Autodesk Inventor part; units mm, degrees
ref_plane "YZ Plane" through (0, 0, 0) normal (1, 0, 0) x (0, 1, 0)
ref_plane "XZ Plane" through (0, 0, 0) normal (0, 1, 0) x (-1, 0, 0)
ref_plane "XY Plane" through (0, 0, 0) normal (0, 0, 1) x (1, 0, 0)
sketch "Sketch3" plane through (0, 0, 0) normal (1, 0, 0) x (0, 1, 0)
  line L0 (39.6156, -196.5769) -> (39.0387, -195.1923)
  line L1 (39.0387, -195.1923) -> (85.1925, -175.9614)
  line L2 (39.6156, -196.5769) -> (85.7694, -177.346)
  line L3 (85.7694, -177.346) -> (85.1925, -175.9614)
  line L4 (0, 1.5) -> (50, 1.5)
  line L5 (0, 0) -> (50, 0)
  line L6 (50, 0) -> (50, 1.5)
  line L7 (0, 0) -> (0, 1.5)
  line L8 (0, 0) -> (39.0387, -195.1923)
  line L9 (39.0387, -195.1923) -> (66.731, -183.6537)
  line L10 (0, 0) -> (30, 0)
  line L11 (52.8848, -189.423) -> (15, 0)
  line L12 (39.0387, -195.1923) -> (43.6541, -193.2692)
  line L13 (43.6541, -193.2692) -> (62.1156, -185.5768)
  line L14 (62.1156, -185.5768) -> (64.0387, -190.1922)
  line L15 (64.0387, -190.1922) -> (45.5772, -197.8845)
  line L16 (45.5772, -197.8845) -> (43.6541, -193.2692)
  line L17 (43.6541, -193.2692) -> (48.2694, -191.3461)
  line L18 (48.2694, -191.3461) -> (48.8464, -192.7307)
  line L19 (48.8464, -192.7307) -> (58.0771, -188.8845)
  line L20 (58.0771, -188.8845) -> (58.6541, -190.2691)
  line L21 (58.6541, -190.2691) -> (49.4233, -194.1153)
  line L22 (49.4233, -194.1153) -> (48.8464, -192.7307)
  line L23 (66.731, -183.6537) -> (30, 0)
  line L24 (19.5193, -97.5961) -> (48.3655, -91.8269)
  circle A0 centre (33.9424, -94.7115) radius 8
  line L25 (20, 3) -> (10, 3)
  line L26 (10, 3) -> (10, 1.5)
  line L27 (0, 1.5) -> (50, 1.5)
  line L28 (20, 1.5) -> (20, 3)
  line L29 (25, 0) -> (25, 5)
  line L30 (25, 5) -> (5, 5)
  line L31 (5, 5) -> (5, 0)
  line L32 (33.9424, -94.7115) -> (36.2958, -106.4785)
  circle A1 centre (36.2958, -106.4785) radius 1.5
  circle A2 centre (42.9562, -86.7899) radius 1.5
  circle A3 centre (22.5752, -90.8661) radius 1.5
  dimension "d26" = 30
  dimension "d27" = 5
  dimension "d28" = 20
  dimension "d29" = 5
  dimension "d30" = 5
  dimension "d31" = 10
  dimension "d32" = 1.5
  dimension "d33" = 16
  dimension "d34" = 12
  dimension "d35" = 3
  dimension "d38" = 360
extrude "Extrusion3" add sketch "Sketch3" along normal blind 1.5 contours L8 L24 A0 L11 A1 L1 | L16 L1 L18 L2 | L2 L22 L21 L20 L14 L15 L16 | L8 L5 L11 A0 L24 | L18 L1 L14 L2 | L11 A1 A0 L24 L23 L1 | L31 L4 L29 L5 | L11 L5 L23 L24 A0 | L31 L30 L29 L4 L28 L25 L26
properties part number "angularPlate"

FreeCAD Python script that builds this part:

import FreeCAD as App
import Part
import Sketcher
from FreeCAD import Vector
Q = App.Units.Quantity

doc = App.newDocument("Part")
body = doc.addObject("PartDesign::Body", "Body")

# Sketch on YZ plane
sketch1 = body.newObject("Sketcher::SketchObject", "Sketch")
sketch1.AttachmentSupport = (doc.getObject("YZ_Plane"), [""])
sketch1.MapMode = "FlatFace"
sketch1.addGeometry([
    Part.LineSegment(Vector(39, -195.2, 0), Vector(43.7, -193.3, 0)),  # 0
    Part.LineSegment(Vector(43.7, -193.3, 0), Vector(45.6, -197.9, 0)),  # 1
    Part.LineSegment(Vector(45.6, -197.9, 0), Vector(64, -190.2, 0)),  # 2
    Part.LineSegment(Vector(64, -190.2, 0), Vector(62.1, -185.6, 0)),  # 3
    Part.LineSegment(Vector(62.1, -185.6, 0), Vector(66.7, -183.7, 0)),  # 4
    Part.LineSegment(Vector(66.7, -183.7, 0), Vector(30, 0, 0)),  # 5
    Part.LineSegment(Vector(30, 0, 0), Vector(25, 0, 0)),  # 6
    Part.LineSegment(Vector(25, 0, 0), Vector(25, 5, 0)),  # 7
    Part.LineSegment(Vector(25, 5, 0), Vector(5, 5, 0)),  # 8
    Part.LineSegment(Vector(5, 5, 0), Vector(5, 0, 0)),  # 9
    Part.LineSegment(Vector(5, 0, 0), Vector(0, 0, 0)),  # 10
    Part.LineSegment(Vector(0, 0, 0), Vector(39, -195.2, 0)),  # 11
    Part.Circle(Vector(33.9, -94.7, 0), Vector(0, 0, 1), 8),  # 12
    Part.Circle(Vector(36.3, -106.5, 0), Vector(0, 0, 1), 1.5),  # 13
    Part.Circle(Vector(22.6, -90.9, 0), Vector(0, 0, 1), 1.5),  # 14
    Part.LineSegment(Vector(48.8, -192.7, 0), Vector(58.1, -188.9, 0)),  # 15
    Part.LineSegment(Vector(58.1, -188.9, 0), Vector(58.7, -190.3, 0)),  # 16
    Part.LineSegment(Vector(58.7, -190.3, 0), Vector(49.4, -194.1, 0)),  # 17
    Part.LineSegment(Vector(49.4, -194.1, 0), Vector(48.8, -192.7, 0)),  # 18
    Part.LineSegment(Vector(20, 1.5, 0), Vector(10, 1.5, 0)),  # 19
    Part.LineSegment(Vector(10, 1.5, 0), Vector(10, 3, 0)),  # 20
    Part.LineSegment(Vector(10, 3, 0), Vector(20, 3, 0)),  # 21
    Part.LineSegment(Vector(20, 3, 0), Vector(20, 1.5, 0)),  # 22
    Part.Circle(Vector(43, -86.8, 0), Vector(0, 0, 1), 1.5),  # 23
], False)
sketch1.addConstraint([
    Sketcher.Constraint("Coincident", 0, 2, 1, 1),
    Sketcher.Constraint("Coincident", 1, 2, 2, 1),
    Sketcher.Constraint("Coincident", 2, 2, 3, 1),
    Sketcher.Constraint("Coincident", 3, 2, 4, 1),
    Sketcher.Constraint("Coincident", 4, 2, 5, 1),
    Sketcher.Constraint("Coincident", 5, 2, 6, 1),
    Sketcher.Constraint("Coincident", 6, 2, 7, 1),
    Sketcher.Constraint("Coincident", 7, 2, 8, 1),
    Sketcher.Constraint("Coincident", 8, 2, 9, 1),
    Sketcher.Constraint("Coincident", 9, 2, 10, 1),
    Sketcher.Constraint("Coincident", 10, 2, 11, 1),
    Sketcher.Constraint("Coincident", 11, 2, 0, 1),
    Sketcher.Constraint("Coincident", 15, 2, 16, 1),
    Sketcher.Constraint("Coincident", 16, 2, 17, 1),
    Sketcher.Constraint("Coincident", 17, 2, 18, 1),
    Sketcher.Constraint("Coincident", 18, 2, 15, 1),
    Sketcher.Constraint("Coincident", 19, 2, 20, 1),
    Sketcher.Constraint("Coincident", 20, 2, 21, 1),
    Sketcher.Constraint("Coincident", 21, 2, 22, 1),
    Sketcher.Constraint("Coincident", 22, 2, 19, 1),
    Sketcher.Constraint("Horizontal", 6),
    Sketcher.Constraint("Vertical", 7),
    Sketcher.Constraint("Horizontal", 8),
    Sketcher.Constraint("Vertical", 9),
    Sketcher.Constraint("Horizontal", 10),
    Sketcher.Constraint("Horizontal", 19),
    Sketcher.Constraint("Vertical", 20),
    Sketcher.Constraint("Horizontal", 21),
    Sketcher.Constraint("Vertical", 22),
    Sketcher.Constraint("Coincident", 10, 2, -1, 1),
    Sketcher.Constraint("Equal", 13, 14),
    Sketcher.Constraint("Equal", 14, 23),
    Sketcher.Constraint("PointOnObject", 5, 2, -1),
    Sketcher.Constraint("Perpendicular", 0, 1),
    Sketcher.Constraint("Perpendicular", 1, 2),
    Sketcher.Constraint("Perpendicular", 2, 3),
    Sketcher.Constraint("Perpendicular", 3, 4),
    Sketcher.Constraint("Parallel", 5, 11),
    Sketcher.Constraint("Parallel", 4, 15),
    Sketcher.Constraint("Perpendicular", 15, 16),
    Sketcher.Constraint("Perpendicular", 16, 17),
    Sketcher.Constraint("Perpendicular", 17, 18),
    Sketcher.Constraint("Equal", 6, 10),
    Sketcher.Constraint("Equal", 10, 7),
    Sketcher.Constraint("Equal", 0, 1),
    Sketcher.Constraint("Equal", 1, 3),
    Sketcher.Constraint("Equal", 3, 4),
    Sketcher.Constraint("Diameter", 12, Q("16 mm")),
    Sketcher.Constraint("Diameter", 13, Q("3 mm")),
    Sketcher.Constraint("DistanceX", 6, 2, 6, 1, Q("5 mm")),
    Sketcher.Constraint("DistanceX", 8, 2, 8, 1, Q("20 mm")),
    Sketcher.Constraint("DistanceX", 19, 2, 19, 1, Q("10 mm")),
    Sketcher.Constraint("Distance", 0, Q("5 mm")),
    Sketcher.Constraint("Distance", 2, Q("20 mm")),
    Sketcher.Constraint("Distance", 15, Q("10 mm")),
    Sketcher.Constraint("DistanceY", 20, 1, 20, 2, Q("1.5 mm")),
    Sketcher.Constraint("DistanceX", -1, 1, 19, 2, Q("10 mm")),
    Sketcher.Constraint("DistanceY", -1, 1, 20, 2, Q("3 mm")),
    Sketcher.Constraint("DistanceY", 11, 2, 2, 2, Q("5 mm")),
    Sketcher.Constraint("Distance", 16, Q("1.5 mm")),
    Sketcher.Constraint("DistanceY", 1, 2, 15, 2, Q("9 mm")),
    Sketcher.Constraint("DistanceX", 1, 2, 15, 2, Q("12.5 mm")),
    Sketcher.Constraint("DistanceY", 23, 3, -1, 1, Q("86.79 mm")),
    Sketcher.Constraint("Distance", 11, Q("199.058 mm")),
    Sketcher.Constraint("DistanceY", 14, 3, -1, 1, Q("90.866 mm")),
    Sketcher.Constraint("DistanceY", 13, 3, 12, 3, Q("11.767 mm")),
    Sketcher.Constraint("DistanceX", 14, 3, 23, 3, Q("20.381 mm")),
    Sketcher.Constraint("DistanceX", 14, 3, 0, 2, Q("21.079 mm")),
    Sketcher.Constraint("DistanceY", 1, 2, 13, 3, Q("91.406 mm")),
    Sketcher.Constraint("DistanceX", 13, 3, 2, 2, Q("27.743 mm")),
    Sketcher.Constraint("DistanceX", -1, 1, 12, 3, Q("33.9424 mm")),
])
pad1 = body.newObject("PartDesign::Pad", "Pad")
pad1.Profile = sketch1
pad1.Length = 1.5

doc.recompute()
